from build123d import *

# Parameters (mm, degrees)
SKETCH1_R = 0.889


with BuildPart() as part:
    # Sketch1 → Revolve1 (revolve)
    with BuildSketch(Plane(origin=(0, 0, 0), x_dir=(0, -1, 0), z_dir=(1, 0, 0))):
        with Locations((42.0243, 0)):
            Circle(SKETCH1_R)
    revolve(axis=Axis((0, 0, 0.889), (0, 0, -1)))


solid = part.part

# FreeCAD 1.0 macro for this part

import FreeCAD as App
import Part
import Sketcher
Q = App.Units.Quantity

doc = App.newDocument("Part")
body = doc.addObject("PartDesign::Body", "Body")

# Sketch on YZ plane
sketch1 = doc.addObject("Sketcher::SketchObject", "Sketch")
body.addObject(sketch1)
sketch1.AttachmentSupport = (doc.YZ_Plane, [""])
sketch1.MapMode = "FlatFace"
sketch1.addGeometry(Part.Circle(App.Vector(-42, 0, 0), App.Vector(0, 0, 1), 0.9), False)
sketch1.addConstraint([
    Sketcher.Constraint("PointOnObject", 0, 3, -1),
    Sketcher.Constraint("Diameter", 0, Q("0.07 in")),
    Sketcher.Constraint("DistanceX", 0, 3, -1, 1, Q("1.6545 in")),
])
revolution = doc.addObject("PartDesign::Revolution", "Revolution")
body.addObject(revolution)
revolution.Profile = sketch1
revolution.ReferenceAxis = (sketch1, ["V_Axis"])
revolution.Angle = 360

doc.recompute()
